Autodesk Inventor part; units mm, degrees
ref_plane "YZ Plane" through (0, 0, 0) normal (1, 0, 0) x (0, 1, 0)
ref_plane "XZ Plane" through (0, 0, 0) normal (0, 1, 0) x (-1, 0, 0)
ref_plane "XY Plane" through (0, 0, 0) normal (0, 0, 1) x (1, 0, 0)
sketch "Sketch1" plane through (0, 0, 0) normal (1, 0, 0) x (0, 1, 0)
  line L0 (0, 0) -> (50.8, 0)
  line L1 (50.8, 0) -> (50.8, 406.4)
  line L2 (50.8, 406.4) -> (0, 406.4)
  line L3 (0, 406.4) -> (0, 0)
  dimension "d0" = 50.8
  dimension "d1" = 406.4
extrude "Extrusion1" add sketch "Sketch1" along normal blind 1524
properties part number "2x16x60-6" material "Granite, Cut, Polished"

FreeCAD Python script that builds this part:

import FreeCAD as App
import Part
import Sketcher
from FreeCAD import Vector
Q = App.Units.Quantity

doc = App.newDocument("Part")
params = doc.addObject("Spreadsheet::Sheet", "Params")
for row, (alias, value) in enumerate([
    ("sketch1_width", "2 in"),
    ("sketch1_height", "16 in"),
    ("pad1_length", "60 in"),
], start=1):
    params.set(f"A{row}", alias)
    params.set(f"B{row}", "=" + value)
    params.setAlias(f"B{row}", alias)

body = doc.addObject("PartDesign::Body", "Body")

# Sketch on YZ plane
sketch1 = body.newObject("Sketcher::SketchObject", "Sketch")
sketch1.AttachmentSupport = (doc.getObject("YZ_Plane"), [""])
sketch1.MapMode = "FlatFace"
sketch1.addGeometry(Part.LineSegment(Vector(0, 406, 0), Vector(0, 0, 0)), False)
sketch1.addGeometry(Part.LineSegment(Vector(0, 0, 0), Vector(51, 0, 0)), False)
sketch1.addGeometry(Part.LineSegment(Vector(51, 0, 0), Vector(51, 406, 0)), False)
sketch1.addGeometry(Part.LineSegment(Vector(51, 406, 0), Vector(0, 406, 0)), False)
sketch1.addConstraint(Sketcher.Constraint("Coincident", 0, 2, 1, 1))
sketch1.addConstraint(Sketcher.Constraint("Coincident", 1, 2, 2, 1))
sketch1.addConstraint(Sketcher.Constraint("Coincident", 2, 2, 3, 1))
sketch1.addConstraint(Sketcher.Constraint("Coincident", 3, 2, 0, 1))
sketch1.addConstraint(Sketcher.Constraint("Vertical", 0))
sketch1.addConstraint(Sketcher.Constraint("Horizontal", 1))
sketch1.addConstraint(Sketcher.Constraint("Vertical", 2))
sketch1.addConstraint(Sketcher.Constraint("Horizontal", 3))
sketch1.addConstraint(Sketcher.Constraint("Coincident", 0, 2, -1, 1))
sketch1.addConstraint(Sketcher.Constraint("DistanceX", 1, 1, 1, 2, Q("2 in")))
sketch1.addConstraint(Sketcher.Constraint("DistanceY", 0, 2, 0, 1, Q("16 in")))
sketch1.setExpression("Constraints[9]", "Params.sketch1_width")
sketch1.setExpression("Constraints[10]", "Params.sketch1_height")
pad1 = body.newObject("PartDesign::Pad", "Pad")
pad1.Profile = sketch1
pad1.setExpression("Length", "Params.pad1_length")

doc.recompute()
